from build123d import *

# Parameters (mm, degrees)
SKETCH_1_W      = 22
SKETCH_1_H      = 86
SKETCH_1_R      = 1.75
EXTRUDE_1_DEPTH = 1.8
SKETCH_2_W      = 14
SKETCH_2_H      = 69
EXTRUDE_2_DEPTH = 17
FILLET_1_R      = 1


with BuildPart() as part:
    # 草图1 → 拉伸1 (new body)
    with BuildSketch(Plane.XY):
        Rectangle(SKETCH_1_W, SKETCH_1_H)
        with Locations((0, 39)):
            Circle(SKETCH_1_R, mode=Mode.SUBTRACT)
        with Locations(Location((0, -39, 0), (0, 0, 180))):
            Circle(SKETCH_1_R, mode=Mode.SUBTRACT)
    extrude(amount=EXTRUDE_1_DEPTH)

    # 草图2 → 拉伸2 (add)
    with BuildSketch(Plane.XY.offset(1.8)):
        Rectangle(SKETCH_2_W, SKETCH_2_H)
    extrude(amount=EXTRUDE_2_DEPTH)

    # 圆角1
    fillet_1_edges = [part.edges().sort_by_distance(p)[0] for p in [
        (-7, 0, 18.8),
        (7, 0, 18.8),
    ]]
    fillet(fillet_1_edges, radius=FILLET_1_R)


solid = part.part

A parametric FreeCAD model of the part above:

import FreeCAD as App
import Part
import Sketcher


def edges_at(feature, points):
    """Names of the edges that pass closest to the given points."""
    edges = feature.Shape.Edges
    near = lambda p: min(range(len(edges)), key=lambda i: edges[i].distToShape(Part.Vertex(*p))[0])
    return sorted({f"Edge{near(p) + 1}" for p in points})


def add_polygon(sketch, points):
    """Adds a closed chain of lines whose ends are joined by coincident constraints."""
    first, n = sketch.GeometryCount, len(points)
    for a, b in zip(points, points[1:] + points[:1]):
        sketch.addGeometry(Part.LineSegment(App.Vector(*a, 0), App.Vector(*b, 0)), False)
    for i in range(n):
        sketch.addConstraint(Sketcher.Constraint("Coincident", first + i, 2, first + (i + 1) % n, 1))

doc = App.newDocument("Part")
body = doc.addObject("PartDesign::Body", "Body")

# Sketch on XY plane
sketch1 = body.newObject("Sketcher::SketchObject", "Sketch")
sketch1.AttachmentSupport = (doc.getObject("XY_Plane"), [""])
sketch1.MapMode = "FlatFace"
add_polygon(sketch1, [(-11, 43), (-11, -43), (11, -43), (11, 43)])  # lines 0-3
sketch1.addGeometry(Part.Circle(App.Vector(0, -39, 0), App.Vector(0, 0, 1), 1.8), False)  # 4
sketch1.addGeometry(Part.Circle(App.Vector(0, 39, 0), App.Vector(0, 0, 1), 1.8), False)  # 5
sketch1.addConstraint([
    Sketcher.Constraint("Vertical", 0),
    Sketcher.Constraint("Horizontal", 1),
    Sketcher.Constraint("Vertical", 2),
    Sketcher.Constraint("Horizontal", 3),
    Sketcher.Constraint("Equal", 4, 5),
    Sketcher.Constraint("Symmetric", 4, 3, 5, 3, -1, 1),
    Sketcher.Constraint("Symmetric", 0, 2, 2, 2, -1, 1),
    Sketcher.Constraint("PointOnObject", 4, 3, -2),
    Sketcher.Constraint("Diameter", 4, 3.5),
    Sketcher.Constraint("DistanceX", 1, 1, 1, 2, 22.0),
    Sketcher.Constraint("DistanceY", 0, 2, 0, 1, 86.0),
    Sketcher.Constraint("DistanceY", 4, 3, -1, 1, 39.0),
])
pad1 = body.newObject("PartDesign::Pad", "Pad")
pad1.Profile = sketch1
pad1.Length = 1.8

# Sketch on XY plane
sketch2 = body.newObject("Sketcher::SketchObject", "Sketch001")
sketch2.AttachmentSupport = (doc.getObject("XY_Plane"), [""])
sketch2.MapMode = "FlatFace"
sketch2.AttachmentOffset = App.Placement(App.Vector(0, 0, 1.8), App.Rotation())
add_polygon(sketch2, [(-7, 34), (-7, -34), (7, -34), (7, 34)])  # lines 0-3
sketch2.addConstraint([
    Sketcher.Constraint("Vertical", 0),
    Sketcher.Constraint("Horizontal", 1),
    Sketcher.Constraint("Vertical", 2),
    Sketcher.Constraint("Horizontal", 3),
    Sketcher.Constraint("Symmetric", 0, 2, 2, 2, -1, 1),
    Sketcher.Constraint("DistanceX", 1, 1, 1, 2, 14.0),
    Sketcher.Constraint("DistanceY", 0, 2, 0, 1, 69.0),
])
pad2 = body.newObject("PartDesign::Pad", "Pad001")
pad2.Profile = sketch2
pad2.Length = 17
doc.recompute()

fillet = body.newObject("PartDesign::Fillet", "Fillet")
fillet.Base = (pad2, edges_at(pad2, [(-7, 0, 18.8), (7, 0, 18.8)]))
fillet.Radius = 1

doc.recompute()
